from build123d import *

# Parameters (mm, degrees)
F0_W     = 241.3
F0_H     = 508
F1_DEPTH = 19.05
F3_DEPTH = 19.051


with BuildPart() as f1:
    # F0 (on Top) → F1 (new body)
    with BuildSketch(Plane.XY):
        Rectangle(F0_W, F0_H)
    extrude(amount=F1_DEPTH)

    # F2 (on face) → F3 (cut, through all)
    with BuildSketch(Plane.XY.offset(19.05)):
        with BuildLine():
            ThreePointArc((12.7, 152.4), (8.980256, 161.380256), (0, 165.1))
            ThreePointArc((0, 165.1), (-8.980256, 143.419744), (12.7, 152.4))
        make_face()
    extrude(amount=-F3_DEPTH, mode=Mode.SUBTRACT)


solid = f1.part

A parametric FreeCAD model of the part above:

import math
import FreeCAD as App
import Part
import Sketcher

V = App.Vector
Q = App.Units.Quantity


def add_polygon(sketch, points):
    """Adds a closed chain of lines whose ends are joined by coincident constraints."""
    first, n = sketch.GeometryCount, len(points)
    for a, b in zip(points, points[1:] + points[:1]):
        sketch.addGeometry(Part.LineSegment(App.Vector(*a, 0), App.Vector(*b, 0)), False)
    for i in range(n):
        sketch.addConstraint(Sketcher.Constraint("Coincident", first + i, 2, first + (i + 1) % n, 1))

doc = App.newDocument("Part")
body = doc.addObject("PartDesign::Body", "Body")

sketch1 = body.newObject("Sketcher::SketchObject", "Sketch")
sketch1.AttachmentSupport = (doc.getObject("XY_Plane"), [""])
sketch1.MapMode = "FlatFace"
add_polygon(sketch1, [(-120.65, 254), (-120.65, -254), (120.65, -254), (120.65, 254)])
sketch1.addConstraint([
    Sketcher.Constraint("Vertical", 0),
    Sketcher.Constraint("Horizontal", 1),
    Sketcher.Constraint("Vertical", 2),
    Sketcher.Constraint("Horizontal", 3),
    Sketcher.Constraint("Symmetric", 0, 2, 2, 2, -1, 1),
    Sketcher.Constraint("DistanceY", 0, 2, 0, 1, Q("20 in")),
    Sketcher.Constraint("DistanceX", 1, 1, 1, 2, Q("9.5 in")),
])
pad1 = body.newObject("PartDesign::Pad", "Pad")
pad1.Profile = sketch1
pad1.Length = Q("0.75 in")

sketch2 = body.newObject("Sketcher::SketchObject", "Sketch001")
sketch2.AttachmentSupport = (doc.getObject("XY_Plane"), [""])
sketch2.MapMode = "FlatFace"
sketch2.AttachmentOffset = App.Placement(V(0, 0, 0.75 * 25.4), App.Rotation())
sketch2.addGeometry([
    Part.ArcOfCircle(Part.Circle(V(0, 152.4, 0), V(0, 0, 1), 12.7), math.radians(0.000002), math.radians(89.999998)),
    Part.ArcOfCircle(Part.Circle(V(0, 152.4, 0), V(0, 0, 1), 12.7), math.radians(90), math.radians(360)),
], False)
sketch2.addConstraint([
    Sketcher.Constraint("Tangent", 0, 1, 1, 2),
    Sketcher.Constraint("Coincident", 1, 1, 0, 2),
    Sketcher.Constraint("PointOnObject", 0, 3, -2),
    Sketcher.Constraint("PointOnObject", 1, 1, -2),
    Sketcher.Constraint("Horizontal", 1, 3, 0, 1),
    Sketcher.Constraint("Radius", 0, Q("0.5 in")),
    Sketcher.Constraint("DistanceY", -1, 1, 0, 3, Q("6 in")),
])
pocket1 = body.newObject("PartDesign::Pocket", "Pocket")
pocket1.Profile = sketch2
pocket1.Type = "ThroughAll"

doc.recompute()
